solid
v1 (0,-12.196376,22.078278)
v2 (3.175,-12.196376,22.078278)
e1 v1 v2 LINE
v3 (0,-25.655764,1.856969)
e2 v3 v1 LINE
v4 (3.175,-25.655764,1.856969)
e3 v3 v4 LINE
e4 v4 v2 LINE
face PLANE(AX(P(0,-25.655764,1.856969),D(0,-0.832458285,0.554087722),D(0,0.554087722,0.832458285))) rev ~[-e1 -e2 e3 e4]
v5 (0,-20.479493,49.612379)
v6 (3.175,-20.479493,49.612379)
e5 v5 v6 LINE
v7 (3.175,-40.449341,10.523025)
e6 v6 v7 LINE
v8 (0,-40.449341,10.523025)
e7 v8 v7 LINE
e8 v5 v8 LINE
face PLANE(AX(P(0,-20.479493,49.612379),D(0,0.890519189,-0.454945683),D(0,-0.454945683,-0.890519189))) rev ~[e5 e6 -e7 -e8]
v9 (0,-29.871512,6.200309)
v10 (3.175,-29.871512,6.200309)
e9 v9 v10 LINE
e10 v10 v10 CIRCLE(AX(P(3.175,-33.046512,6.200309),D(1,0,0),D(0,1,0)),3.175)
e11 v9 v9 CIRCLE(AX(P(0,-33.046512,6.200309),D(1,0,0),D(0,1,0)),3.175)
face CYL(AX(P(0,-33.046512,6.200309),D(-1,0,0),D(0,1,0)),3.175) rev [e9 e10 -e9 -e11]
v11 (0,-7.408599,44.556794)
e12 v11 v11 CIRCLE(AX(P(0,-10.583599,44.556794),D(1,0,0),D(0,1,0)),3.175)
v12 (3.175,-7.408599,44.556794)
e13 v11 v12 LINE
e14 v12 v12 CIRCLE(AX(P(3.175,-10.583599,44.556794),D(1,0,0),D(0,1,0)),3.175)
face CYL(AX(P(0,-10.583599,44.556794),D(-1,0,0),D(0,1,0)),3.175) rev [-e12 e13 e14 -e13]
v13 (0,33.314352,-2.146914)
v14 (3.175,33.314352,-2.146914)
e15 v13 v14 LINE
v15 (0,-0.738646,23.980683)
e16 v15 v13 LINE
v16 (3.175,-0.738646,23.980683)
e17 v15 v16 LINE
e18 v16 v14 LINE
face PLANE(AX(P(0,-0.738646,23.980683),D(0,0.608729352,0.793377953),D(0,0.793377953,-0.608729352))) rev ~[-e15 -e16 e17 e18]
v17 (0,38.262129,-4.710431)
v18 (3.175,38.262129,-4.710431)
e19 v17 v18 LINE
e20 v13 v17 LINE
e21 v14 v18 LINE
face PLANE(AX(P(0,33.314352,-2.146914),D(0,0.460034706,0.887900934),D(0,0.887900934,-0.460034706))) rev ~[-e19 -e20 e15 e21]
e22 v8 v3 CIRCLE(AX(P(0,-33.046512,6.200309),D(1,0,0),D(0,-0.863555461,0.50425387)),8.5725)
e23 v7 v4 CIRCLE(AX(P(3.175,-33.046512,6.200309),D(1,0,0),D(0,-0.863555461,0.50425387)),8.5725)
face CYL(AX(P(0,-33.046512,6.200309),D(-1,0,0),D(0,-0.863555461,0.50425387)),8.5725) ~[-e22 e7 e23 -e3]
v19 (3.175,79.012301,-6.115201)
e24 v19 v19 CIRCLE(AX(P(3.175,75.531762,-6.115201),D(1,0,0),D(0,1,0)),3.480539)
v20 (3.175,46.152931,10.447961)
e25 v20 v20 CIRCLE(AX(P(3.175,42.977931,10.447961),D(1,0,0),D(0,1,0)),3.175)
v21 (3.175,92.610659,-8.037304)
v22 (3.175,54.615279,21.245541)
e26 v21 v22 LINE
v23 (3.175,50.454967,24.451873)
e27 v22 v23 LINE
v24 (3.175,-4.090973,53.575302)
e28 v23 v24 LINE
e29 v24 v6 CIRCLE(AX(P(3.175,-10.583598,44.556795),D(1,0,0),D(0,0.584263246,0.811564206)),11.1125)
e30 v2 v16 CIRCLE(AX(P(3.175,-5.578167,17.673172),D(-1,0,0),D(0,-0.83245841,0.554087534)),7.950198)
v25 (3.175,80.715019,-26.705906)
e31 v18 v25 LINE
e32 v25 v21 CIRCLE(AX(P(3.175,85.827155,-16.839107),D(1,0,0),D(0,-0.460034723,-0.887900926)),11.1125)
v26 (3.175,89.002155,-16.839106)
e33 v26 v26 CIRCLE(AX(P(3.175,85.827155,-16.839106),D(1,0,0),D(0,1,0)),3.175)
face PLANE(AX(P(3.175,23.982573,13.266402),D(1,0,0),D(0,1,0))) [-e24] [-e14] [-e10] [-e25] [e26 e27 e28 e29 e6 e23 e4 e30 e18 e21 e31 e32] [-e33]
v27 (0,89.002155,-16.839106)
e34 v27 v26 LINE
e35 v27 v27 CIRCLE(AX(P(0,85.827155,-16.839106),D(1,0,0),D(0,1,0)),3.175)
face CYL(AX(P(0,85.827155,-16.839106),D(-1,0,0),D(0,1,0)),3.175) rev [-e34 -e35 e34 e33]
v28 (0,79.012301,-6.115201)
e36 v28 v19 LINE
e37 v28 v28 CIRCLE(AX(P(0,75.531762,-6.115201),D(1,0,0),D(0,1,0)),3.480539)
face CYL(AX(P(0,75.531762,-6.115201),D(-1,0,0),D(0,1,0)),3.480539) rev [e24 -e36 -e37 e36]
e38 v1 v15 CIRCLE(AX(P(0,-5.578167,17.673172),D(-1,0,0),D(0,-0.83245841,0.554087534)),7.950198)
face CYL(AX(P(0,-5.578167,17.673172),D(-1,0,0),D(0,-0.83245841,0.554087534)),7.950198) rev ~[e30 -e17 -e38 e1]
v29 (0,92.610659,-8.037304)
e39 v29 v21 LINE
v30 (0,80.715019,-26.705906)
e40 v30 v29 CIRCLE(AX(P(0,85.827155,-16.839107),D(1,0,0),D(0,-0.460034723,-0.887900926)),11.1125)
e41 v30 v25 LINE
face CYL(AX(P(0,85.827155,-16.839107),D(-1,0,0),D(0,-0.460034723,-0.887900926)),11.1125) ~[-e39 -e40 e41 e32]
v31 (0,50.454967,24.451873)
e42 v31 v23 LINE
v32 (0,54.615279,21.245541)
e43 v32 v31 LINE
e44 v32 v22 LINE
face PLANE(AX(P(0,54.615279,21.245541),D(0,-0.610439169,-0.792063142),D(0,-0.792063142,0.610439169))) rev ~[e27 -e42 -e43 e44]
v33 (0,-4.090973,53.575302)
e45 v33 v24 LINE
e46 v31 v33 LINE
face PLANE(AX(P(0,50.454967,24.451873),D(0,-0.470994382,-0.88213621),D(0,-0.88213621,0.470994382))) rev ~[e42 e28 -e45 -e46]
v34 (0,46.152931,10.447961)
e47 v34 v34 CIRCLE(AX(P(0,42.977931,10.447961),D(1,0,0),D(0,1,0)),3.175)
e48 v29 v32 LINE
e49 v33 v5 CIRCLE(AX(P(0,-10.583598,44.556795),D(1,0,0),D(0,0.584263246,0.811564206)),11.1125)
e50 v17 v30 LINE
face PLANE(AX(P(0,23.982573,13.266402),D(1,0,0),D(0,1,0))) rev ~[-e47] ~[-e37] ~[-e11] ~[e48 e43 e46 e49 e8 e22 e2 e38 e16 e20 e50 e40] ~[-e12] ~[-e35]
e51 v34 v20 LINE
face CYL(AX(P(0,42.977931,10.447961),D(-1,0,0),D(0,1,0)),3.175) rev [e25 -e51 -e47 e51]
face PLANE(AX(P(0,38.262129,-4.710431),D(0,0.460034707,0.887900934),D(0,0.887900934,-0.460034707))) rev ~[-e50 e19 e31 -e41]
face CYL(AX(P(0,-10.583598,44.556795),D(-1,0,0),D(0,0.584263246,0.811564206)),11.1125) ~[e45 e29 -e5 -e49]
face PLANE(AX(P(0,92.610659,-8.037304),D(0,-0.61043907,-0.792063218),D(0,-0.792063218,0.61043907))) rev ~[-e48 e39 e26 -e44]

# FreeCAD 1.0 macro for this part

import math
import FreeCAD as App
import Part
import Sketcher

V = App.Vector
Q = App.Units.Quantity

doc = App.newDocument("Part")
body = doc.addObject("PartDesign::Body", "Body")

sketch1 = doc.addObject("Sketcher::SketchObject", "Sketch")
body.addObject(sketch1)
sketch1.AttachmentSupport = (doc.YZ_Plane, [""])
sketch1.MapMode = "FlatFace"
sketch1.addGeometry(Part.LineSegment(V(-20.479493, 49.612379, 0), V(-40.449341, 10.523025, 0)), False)
sketch1.addGeometry(Part.ArcOfCircle(Part.Circle(V(-33.046512, 6.200309, 0), V(0, 0, 1), 8.5725), math.radians(149.718165), math.radians(329.558415)), False)
sketch1.addGeometry(Part.LineSegment(V(-25.655764, 1.856969, 0), V(-12.196376, 22.078278, 0)), False)
sketch1.addGeometry(Part.ArcOfCircle(Part.Circle(V(-5.578167, 17.673172, 0), V(0, 0, 1), 7.950198), math.radians(52.502302), math.radians(146.352111)), False)
sketch1.addGeometry(Part.LineSegment(V(-0.738646, 23.980683, 0), V(33.314352, -2.146914, 0)), False)
sketch1.addGeometry(Part.LineSegment(V(33.314352, -2.146914, 0), V(38.262129, -4.710431, 0)), False)
sketch1.addGeometry(Part.LineSegment(V(38.262129, -4.710431, 0), V(80.715019, -26.705906, 0)), False)
sketch1.addGeometry(Part.ArcOfCircle(Part.Circle(V(85.827155, -16.839107, 0), V(0, 0, 1), 11.1125), math.radians(-117.389348), math.radians(52.378744)), False)
sketch1.addGeometry(Part.LineSegment(V(92.610659, -8.037304, 0), V(54.615279, 21.245541, 0)), False)
sketch1.addGeometry(Part.LineSegment(V(54.615279, 21.245541, 0), V(50.454967, 24.451873, 0)), False)
sketch1.addGeometry(Part.LineSegment(V(50.454967, 24.451873, 0), V(-4.090973, 53.575302, 0)), False)
sketch1.addGeometry(Part.ArcOfCircle(Part.Circle(V(-10.583598, 44.556795, 0), V(0, 0, 1), 11.1125), math.radians(54.249041), math.radians(152.938558)), False)
sketch1.addGeometry(Part.Circle(V(-33.046512, 6.200309, 0), V(0, 0, 1), 3.175), False)
sketch1.addGeometry(Part.Circle(V(85.827155, -16.839106, 0), V(0, 0, 1), 3.175), False)
sketch1.addGeometry(Part.Circle(V(75.531762, -6.115201, 0), V(0, 0, 1), 3.480539), False)
sketch1.addGeometry(Part.Circle(V(42.977931, 10.447961, 0), V(0, 0, 1), 3.175), False)
sketch1.addGeometry(Part.Circle(V(-10.583599, 44.556794, 0), V(0, 0, 1), 3.175), False)
sketch1.addConstraint(Sketcher.Constraint("Coincident", 0, 2, 1, 1))
sketch1.addConstraint(Sketcher.Constraint("Coincident", 1, 2, 2, 1))
sketch1.addConstraint(Sketcher.Constraint("Coincident", 2, 2, 3, 2))
sketch1.addConstraint(Sketcher.Constraint("Coincident", 3, 1, 4, 1))
sketch1.addConstraint(Sketcher.Constraint("Coincident", 4, 2, 5, 1))
sketch1.addConstraint(Sketcher.Constraint("Coincident", 5, 2, 6, 1))
sketch1.addConstraint(Sketcher.Constraint("Coincident", 6, 2, 7, 1))
sketch1.addConstraint(Sketcher.Constraint("Coincident", 7, 2, 8, 1))
sketch1.addConstraint(Sketcher.Constraint("Coincident", 8, 2, 9, 1))
sketch1.addConstraint(Sketcher.Constraint("Coincident", 9, 2, 10, 1))
sketch1.addConstraint(Sketcher.Constraint("Coincident", 10, 2, 11, 1))
sketch1.addConstraint(Sketcher.Constraint("Coincident", 11, 2, 0, 1))
sketch1.addConstraint(Sketcher.Constraint("Coincident", 12, 3, 1, 3))
sketch1.addConstraint(Sketcher.Constraint("Coincident", 13, 3, 7, 3))
sketch1.addConstraint(Sketcher.Constraint("Coincident", 16, 3, 11, 3))
sketch1.addConstraint(Sketcher.Constraint("Diameter", 12, Q("0.25 in")))
sketch1.addConstraint(Sketcher.Constraint("Diameter", 13, Q("0.25 in")))
sketch1.addConstraint(Sketcher.Constraint("Diameter", 15, Q("0.25 in")))
sketch1.addConstraint(Sketcher.Constraint("Diameter", 16, Q("0.25 in")))
sketch1.addConstraint(Sketcher.Constraint("Radius", 3, Q("0.3129999 in")))
sketch1.addConstraint(Sketcher.Constraint("Radius", 7, Q("0.4375 in")))
sketch1.addConstraint(Sketcher.Constraint("Radius", 11, Q("0.4375 in")))
sketch1.addConstraint(Sketcher.Constraint("Radius", 1, Q("0.3375 in")))
sketch1.addConstraint(Sketcher.Constraint("Diameter", 14, 6.961078))
sketch1.addConstraint(Sketcher.Constraint("Distance", 9, 5.2525))
sketch1.addConstraint(Sketcher.Constraint("DistanceX", 11, 3, -1, 1, 10.583598))
sketch1.addConstraint(Sketcher.Constraint("DistanceY", 14, 3, -1, 1, 6.115201))
sketch1.addConstraint(Sketcher.Constraint("DistanceY", 7, 3, 11, 3, 61.395901))
sketch1.addConstraint(Sketcher.Constraint("DistanceX", 5, 2, 15, 3, 4.715802))
sketch1.addConstraint(Sketcher.Constraint("DistanceY", 6, 2, 7, 3, 9.866799))
sketch1.addConstraint(Sketcher.Constraint("DistanceY", 2, 2, 11, 2, 27.534101))
sketch1.addConstraint(Sketcher.Constraint("Distance", 10, 61.83392))
sketch1.addConstraint(Sketcher.Constraint("DistanceX", 1, 3, -1, 1, 33.046512))
sketch1.addConstraint(Sketcher.Constraint("DistanceY", -1, 1, 1, 3, 6.200309))
sketch1.addConstraint(Sketcher.Constraint("DistanceX", -1, 1, 14, 3, 75.531762))
sketch1.addConstraint(Sketcher.Constraint("DistanceX", -1, 1, 15, 3, 42.977931))
sketch1.addConstraint(Sketcher.Constraint("DistanceY", -1, 1, 15, 3, 10.447961))
sketch1.addConstraint(Sketcher.Constraint("DistanceX", 0, 2, -1, 1, 40.449341))
sketch1.addConstraint(Sketcher.Constraint("DistanceY", -1, 1, 1, 2, 1.856969))
sketch1.addConstraint(Sketcher.Constraint("DistanceY", -1, 1, 2, 2, 22.078278))
sketch1.addConstraint(Sketcher.Constraint("DistanceY", 5, 2, -1, 1, 4.710431))
sketch1.addConstraint(Sketcher.Constraint("DistanceX", -1, 1, 6, 2, 80.715019))
sketch1.addConstraint(Sketcher.Constraint("DistanceX", -1, 1, 7, 2, 92.610659))
sketch1.addConstraint(Sketcher.Constraint("DistanceX", -1, 1, 8, 2, 54.615279))
sketch1.addConstraint(Sketcher.Constraint("DistanceY", -1, 1, 8, 2, 21.245541))
sketch1.addConstraint(Sketcher.Constraint("DistanceX", 3, 3, 7, 3, 91.405322))
sketch1.addConstraint(Sketcher.Constraint("DistanceY", 7, 3, 3, 3, 34.512279))
sketch1.addConstraint(Sketcher.Constraint("DistanceY", 15, 3, 3, 3, 7.225211))
sketch1.addConstraint(Sketcher.Constraint("DistanceX", 3, 3, 3, 1, 4.839521))
sketch1.addConstraint(Sketcher.Constraint("DistanceX", 4, 2, 15, 3, 9.663579))
sketch1.addConstraint(Sketcher.Constraint("DistanceY", 4, 2, 2, 2, 24.225192))
sketch1.addConstraint(Sketcher.Constraint("DistanceX", 9, 2, 8, 2, 4.160312))
pad1 = doc.addObject("PartDesign::Pad", "Pad")
body.addObject(pad1)
pad1.Profile = sketch1
pad1.Length = Q("0.125 in")

doc.recompute()
